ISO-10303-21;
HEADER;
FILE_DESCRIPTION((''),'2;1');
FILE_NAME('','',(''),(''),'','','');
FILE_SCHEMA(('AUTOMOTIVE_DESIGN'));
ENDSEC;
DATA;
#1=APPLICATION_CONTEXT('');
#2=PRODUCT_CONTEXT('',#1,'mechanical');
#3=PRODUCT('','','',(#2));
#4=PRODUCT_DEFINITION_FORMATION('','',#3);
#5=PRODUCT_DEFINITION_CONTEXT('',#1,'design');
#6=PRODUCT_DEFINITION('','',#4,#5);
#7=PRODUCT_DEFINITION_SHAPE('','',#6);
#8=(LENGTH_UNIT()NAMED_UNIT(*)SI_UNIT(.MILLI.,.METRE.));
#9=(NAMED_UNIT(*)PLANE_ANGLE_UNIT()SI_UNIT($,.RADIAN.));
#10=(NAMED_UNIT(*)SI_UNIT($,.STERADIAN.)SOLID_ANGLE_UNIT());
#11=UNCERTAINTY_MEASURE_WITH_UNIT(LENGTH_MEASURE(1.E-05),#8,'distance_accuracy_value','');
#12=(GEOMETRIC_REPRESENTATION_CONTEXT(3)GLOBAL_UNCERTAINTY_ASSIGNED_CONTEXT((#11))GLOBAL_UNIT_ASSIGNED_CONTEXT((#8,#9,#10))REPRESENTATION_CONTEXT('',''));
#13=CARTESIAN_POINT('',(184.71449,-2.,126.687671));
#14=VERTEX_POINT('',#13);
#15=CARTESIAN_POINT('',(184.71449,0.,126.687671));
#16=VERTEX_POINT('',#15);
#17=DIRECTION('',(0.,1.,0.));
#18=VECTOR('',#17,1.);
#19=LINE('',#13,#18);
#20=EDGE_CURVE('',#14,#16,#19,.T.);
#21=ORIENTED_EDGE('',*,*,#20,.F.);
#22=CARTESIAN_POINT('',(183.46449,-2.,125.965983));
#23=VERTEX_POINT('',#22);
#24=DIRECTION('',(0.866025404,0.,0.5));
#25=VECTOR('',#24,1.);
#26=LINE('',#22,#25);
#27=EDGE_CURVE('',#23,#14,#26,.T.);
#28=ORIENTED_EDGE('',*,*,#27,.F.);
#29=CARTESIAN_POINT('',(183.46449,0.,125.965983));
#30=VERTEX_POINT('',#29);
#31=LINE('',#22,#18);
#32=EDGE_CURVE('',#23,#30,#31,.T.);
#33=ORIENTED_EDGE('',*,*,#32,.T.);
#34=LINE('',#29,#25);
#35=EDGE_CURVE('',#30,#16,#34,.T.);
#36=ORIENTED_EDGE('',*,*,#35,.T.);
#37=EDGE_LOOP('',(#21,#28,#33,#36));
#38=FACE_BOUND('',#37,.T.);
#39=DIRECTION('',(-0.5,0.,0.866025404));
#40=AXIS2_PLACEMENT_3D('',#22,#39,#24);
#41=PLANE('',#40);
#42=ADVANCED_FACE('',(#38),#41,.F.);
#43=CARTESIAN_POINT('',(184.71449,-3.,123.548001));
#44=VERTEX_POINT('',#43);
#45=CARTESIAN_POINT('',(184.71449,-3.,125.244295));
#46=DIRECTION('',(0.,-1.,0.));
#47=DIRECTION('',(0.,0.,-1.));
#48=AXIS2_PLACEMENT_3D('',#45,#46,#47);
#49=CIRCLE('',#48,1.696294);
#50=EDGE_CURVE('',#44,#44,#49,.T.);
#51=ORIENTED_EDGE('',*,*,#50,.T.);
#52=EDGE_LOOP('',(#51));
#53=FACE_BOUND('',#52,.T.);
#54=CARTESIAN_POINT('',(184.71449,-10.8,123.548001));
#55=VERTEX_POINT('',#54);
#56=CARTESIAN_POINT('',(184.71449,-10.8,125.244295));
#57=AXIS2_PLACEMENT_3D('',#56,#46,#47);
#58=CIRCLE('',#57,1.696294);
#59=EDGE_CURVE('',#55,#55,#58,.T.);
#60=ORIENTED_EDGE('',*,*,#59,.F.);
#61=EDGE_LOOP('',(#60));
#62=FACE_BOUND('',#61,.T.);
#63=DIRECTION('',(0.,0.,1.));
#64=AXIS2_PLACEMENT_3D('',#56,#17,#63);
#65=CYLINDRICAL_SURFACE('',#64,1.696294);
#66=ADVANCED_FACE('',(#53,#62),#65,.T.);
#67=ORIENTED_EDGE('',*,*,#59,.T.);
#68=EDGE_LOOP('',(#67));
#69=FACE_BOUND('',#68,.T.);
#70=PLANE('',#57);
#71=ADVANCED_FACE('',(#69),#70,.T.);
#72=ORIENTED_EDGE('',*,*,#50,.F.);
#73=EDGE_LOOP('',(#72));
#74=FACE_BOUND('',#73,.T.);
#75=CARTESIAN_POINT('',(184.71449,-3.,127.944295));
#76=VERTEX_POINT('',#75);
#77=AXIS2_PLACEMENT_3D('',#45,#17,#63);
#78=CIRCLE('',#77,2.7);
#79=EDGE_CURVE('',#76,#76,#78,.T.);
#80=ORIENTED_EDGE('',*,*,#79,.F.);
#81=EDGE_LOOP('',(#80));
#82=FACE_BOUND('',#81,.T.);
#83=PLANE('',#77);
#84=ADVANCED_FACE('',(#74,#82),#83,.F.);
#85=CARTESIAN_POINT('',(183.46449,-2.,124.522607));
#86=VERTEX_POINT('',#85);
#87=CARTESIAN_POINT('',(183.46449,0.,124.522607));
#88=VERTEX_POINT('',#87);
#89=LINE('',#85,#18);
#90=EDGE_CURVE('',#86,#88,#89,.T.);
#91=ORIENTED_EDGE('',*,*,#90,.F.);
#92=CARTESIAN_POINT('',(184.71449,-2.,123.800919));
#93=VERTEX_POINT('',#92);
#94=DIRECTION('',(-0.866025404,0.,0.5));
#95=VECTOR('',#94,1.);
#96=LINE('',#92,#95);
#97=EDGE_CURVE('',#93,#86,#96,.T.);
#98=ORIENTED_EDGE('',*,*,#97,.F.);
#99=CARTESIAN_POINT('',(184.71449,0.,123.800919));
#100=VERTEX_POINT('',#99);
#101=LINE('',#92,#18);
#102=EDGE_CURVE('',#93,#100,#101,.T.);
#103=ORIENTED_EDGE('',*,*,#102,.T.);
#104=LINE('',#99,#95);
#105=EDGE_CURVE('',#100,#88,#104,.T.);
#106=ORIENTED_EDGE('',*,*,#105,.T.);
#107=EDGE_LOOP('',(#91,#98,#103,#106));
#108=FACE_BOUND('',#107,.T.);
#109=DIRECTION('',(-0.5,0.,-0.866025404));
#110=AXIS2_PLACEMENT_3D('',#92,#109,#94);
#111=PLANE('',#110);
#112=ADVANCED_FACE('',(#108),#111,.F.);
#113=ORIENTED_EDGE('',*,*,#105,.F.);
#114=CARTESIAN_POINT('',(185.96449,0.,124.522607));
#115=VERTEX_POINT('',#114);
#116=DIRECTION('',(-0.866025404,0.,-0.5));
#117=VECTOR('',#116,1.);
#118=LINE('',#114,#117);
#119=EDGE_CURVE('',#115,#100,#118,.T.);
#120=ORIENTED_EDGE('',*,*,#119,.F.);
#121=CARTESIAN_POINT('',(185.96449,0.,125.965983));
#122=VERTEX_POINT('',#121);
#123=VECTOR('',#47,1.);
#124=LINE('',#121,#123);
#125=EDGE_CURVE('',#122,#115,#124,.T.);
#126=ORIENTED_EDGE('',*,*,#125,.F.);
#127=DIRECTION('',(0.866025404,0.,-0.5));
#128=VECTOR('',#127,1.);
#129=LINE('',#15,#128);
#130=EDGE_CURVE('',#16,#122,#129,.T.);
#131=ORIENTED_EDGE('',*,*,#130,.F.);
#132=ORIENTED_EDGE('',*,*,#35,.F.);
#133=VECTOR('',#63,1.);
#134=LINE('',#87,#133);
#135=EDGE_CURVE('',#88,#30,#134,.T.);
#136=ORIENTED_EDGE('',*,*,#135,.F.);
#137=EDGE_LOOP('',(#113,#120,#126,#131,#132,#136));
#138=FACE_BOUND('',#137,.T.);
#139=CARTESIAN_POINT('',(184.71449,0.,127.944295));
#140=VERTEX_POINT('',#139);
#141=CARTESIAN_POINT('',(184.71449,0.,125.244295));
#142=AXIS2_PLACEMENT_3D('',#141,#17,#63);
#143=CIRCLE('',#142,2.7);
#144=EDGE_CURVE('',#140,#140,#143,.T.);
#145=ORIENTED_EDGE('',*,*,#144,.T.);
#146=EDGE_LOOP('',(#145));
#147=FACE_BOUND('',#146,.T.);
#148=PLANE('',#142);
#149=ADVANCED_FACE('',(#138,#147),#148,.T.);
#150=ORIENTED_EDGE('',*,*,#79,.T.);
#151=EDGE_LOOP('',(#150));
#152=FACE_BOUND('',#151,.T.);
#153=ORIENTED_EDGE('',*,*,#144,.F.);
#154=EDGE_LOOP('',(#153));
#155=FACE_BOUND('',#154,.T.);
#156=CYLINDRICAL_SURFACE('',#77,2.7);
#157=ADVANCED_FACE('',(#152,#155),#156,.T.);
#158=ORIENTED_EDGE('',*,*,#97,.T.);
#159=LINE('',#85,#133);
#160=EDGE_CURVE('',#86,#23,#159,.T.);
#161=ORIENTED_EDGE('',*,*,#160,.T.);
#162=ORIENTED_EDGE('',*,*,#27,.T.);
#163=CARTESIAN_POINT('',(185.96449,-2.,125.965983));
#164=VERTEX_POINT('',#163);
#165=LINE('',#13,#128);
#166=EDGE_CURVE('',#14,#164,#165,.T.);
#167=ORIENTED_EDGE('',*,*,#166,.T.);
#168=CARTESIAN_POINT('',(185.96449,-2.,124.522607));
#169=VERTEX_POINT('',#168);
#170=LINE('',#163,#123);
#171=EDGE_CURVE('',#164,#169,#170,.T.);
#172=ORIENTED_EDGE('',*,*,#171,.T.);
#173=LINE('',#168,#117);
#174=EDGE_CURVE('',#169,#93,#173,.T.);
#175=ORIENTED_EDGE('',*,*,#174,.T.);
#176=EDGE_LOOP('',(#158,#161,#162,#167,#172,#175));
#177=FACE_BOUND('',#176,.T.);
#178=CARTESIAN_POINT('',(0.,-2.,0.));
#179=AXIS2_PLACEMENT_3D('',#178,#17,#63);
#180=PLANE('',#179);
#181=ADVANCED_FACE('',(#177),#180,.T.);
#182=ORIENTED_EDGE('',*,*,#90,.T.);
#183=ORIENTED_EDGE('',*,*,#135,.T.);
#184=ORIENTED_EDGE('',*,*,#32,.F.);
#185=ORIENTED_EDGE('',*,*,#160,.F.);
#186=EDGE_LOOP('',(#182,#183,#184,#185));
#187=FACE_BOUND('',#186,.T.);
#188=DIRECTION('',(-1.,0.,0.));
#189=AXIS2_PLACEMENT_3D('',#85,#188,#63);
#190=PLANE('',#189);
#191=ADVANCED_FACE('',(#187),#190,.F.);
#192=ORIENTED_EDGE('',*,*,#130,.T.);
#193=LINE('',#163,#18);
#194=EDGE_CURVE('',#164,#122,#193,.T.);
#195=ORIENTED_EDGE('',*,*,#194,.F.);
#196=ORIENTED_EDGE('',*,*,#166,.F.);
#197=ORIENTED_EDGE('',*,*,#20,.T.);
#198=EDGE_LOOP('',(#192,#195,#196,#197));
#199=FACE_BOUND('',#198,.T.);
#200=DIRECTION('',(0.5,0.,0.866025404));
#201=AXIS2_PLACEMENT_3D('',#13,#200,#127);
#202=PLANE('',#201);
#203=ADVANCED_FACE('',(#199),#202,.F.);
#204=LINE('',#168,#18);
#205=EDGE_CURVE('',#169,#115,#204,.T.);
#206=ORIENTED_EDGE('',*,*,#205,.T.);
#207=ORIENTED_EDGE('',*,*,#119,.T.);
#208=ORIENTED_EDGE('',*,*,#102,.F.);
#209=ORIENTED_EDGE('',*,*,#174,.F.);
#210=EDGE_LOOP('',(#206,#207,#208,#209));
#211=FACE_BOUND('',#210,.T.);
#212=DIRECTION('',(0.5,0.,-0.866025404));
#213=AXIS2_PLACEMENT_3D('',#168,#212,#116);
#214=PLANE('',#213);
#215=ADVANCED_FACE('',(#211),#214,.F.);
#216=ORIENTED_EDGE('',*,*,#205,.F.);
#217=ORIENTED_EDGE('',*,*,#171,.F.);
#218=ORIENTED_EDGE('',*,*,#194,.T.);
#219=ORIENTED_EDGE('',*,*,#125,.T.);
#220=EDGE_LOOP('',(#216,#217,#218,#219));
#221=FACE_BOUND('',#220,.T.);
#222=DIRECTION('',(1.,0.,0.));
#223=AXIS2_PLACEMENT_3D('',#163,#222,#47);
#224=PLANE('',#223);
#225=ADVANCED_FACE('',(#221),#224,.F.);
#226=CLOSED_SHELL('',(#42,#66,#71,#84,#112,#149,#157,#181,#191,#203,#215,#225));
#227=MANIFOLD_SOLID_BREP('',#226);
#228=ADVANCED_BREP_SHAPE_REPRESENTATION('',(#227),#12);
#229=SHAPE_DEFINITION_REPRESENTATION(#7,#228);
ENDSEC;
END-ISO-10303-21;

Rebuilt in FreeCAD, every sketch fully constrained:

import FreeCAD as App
import Part
import Sketcher
from FreeCAD import Vector
Q = App.Units.Quantity


def add_polygon(sketch, points):
    """Adds a closed chain of lines whose ends are joined by coincident constraints."""
    first, n = sketch.GeometryCount, len(points)
    for a, b in zip(points, points[1:] + points[:1]):
        sketch.addGeometry(Part.LineSegment(App.Vector(*a, 0), App.Vector(*b, 0)), False)
    for i in range(n):
        sketch.addConstraint(Sketcher.Constraint("Coincident", first + i, 2, first + (i + 1) % n, 1))

doc = App.newDocument("Part")
body = doc.addObject("PartDesign::Body", "Body")

# Sketch on XZ plane
sketch1 = body.newObject("Sketcher::SketchObject", "Sketch")
sketch1.AttachmentSupport = (doc.getObject("XZ_Plane"), [""])
sketch1.MapMode = "FlatFace"
sketch1.addGeometry(Part.Circle(Vector(184.7, 125.2, 0), Vector(0, 0, 1), 2.7), False)
sketch1.addConstraint([
    Sketcher.Constraint("Diameter", 0, Q("5.4 mm")),
    Sketcher.Constraint("DistanceX", -1, 1, 0, 3, Q("184.71449 mm")),
    Sketcher.Constraint("DistanceY", -1, 1, 0, 3, Q("125.244295 mm")),
])
pad1 = body.newObject("PartDesign::Pad", "Pad")
pad1.Profile = sketch1
pad1.Length = 3

# Sketch on XZ plane
sketch2 = body.newObject("Sketcher::SketchObject", "Sketch001")
sketch2.AttachmentSupport = (doc.getObject("XZ_Plane"), [""])
sketch2.MapMode = "FlatFace"
sketch2.AttachmentOffset = App.Placement(Vector(0, 0, 3), App.Rotation())
sketch2.addGeometry(Part.Circle(Vector(184.7, 125.2, 0), Vector(0, 0, 1), 1.7), False)
sketch2.addConstraint([
    Sketcher.Constraint("Diameter", 0, Q("3.392587 mm")),
    Sketcher.Constraint("DistanceX", -1, 1, 0, 3, Q("184.71449 mm")),
    Sketcher.Constraint("DistanceY", -1, 1, 0, 3, Q("125.244295 mm")),
])
pad2 = body.newObject("PartDesign::Pad", "Pad001")
pad2.Profile = sketch2
pad2.Length = 7.8

# Sketch on XZ plane
sketch3 = body.newObject("Sketcher::SketchObject", "Sketch002")
sketch3.AttachmentSupport = (doc.getObject("XZ_Plane"), [""])
sketch3.MapMode = "FlatFace"
add_polygon(sketch3, [(184.7, 123.8), (183.5, 124.5), (183.5, 126), (184.7, 126.7), (186, 126), (186, 124.5)])  # lines 0-5
sketch3.addConstraint([
    Sketcher.Constraint("Vertical", 1),
    Sketcher.Constraint("Vertical", 4),
    Sketcher.Constraint("Parallel", 0, 3),
    Sketcher.Constraint("Parallel", 2, 5),
    Sketcher.Constraint("Horizontal", 1, 2, 3, 2),
    Sketcher.Constraint("Horizontal", 0, 2, 4, 2),
    Sketcher.Constraint("Vertical", 2, 2, 5, 2),
    Sketcher.Constraint("Angle", 0, Q("150 deg")),
    Sketcher.Constraint("DistanceX", 1, 2, 3, 2, Q("2.5 mm")),
    Sketcher.Constraint("DistanceY", 1, 1, 1, 2, Q("1.443376 mm")),
    Sketcher.Constraint("DistanceX", -1, 1, 0, 2, Q("183.46449 mm")),
    Sketcher.Constraint("DistanceY", -1, 1, 2, 2, Q("126.687671 mm")),
])
pocket1 = body.newObject("PartDesign::Pocket", "Pocket")
pocket1.Profile = sketch3
pocket1.Length = 2
pocket1.Reversed = True

doc.recompute()
